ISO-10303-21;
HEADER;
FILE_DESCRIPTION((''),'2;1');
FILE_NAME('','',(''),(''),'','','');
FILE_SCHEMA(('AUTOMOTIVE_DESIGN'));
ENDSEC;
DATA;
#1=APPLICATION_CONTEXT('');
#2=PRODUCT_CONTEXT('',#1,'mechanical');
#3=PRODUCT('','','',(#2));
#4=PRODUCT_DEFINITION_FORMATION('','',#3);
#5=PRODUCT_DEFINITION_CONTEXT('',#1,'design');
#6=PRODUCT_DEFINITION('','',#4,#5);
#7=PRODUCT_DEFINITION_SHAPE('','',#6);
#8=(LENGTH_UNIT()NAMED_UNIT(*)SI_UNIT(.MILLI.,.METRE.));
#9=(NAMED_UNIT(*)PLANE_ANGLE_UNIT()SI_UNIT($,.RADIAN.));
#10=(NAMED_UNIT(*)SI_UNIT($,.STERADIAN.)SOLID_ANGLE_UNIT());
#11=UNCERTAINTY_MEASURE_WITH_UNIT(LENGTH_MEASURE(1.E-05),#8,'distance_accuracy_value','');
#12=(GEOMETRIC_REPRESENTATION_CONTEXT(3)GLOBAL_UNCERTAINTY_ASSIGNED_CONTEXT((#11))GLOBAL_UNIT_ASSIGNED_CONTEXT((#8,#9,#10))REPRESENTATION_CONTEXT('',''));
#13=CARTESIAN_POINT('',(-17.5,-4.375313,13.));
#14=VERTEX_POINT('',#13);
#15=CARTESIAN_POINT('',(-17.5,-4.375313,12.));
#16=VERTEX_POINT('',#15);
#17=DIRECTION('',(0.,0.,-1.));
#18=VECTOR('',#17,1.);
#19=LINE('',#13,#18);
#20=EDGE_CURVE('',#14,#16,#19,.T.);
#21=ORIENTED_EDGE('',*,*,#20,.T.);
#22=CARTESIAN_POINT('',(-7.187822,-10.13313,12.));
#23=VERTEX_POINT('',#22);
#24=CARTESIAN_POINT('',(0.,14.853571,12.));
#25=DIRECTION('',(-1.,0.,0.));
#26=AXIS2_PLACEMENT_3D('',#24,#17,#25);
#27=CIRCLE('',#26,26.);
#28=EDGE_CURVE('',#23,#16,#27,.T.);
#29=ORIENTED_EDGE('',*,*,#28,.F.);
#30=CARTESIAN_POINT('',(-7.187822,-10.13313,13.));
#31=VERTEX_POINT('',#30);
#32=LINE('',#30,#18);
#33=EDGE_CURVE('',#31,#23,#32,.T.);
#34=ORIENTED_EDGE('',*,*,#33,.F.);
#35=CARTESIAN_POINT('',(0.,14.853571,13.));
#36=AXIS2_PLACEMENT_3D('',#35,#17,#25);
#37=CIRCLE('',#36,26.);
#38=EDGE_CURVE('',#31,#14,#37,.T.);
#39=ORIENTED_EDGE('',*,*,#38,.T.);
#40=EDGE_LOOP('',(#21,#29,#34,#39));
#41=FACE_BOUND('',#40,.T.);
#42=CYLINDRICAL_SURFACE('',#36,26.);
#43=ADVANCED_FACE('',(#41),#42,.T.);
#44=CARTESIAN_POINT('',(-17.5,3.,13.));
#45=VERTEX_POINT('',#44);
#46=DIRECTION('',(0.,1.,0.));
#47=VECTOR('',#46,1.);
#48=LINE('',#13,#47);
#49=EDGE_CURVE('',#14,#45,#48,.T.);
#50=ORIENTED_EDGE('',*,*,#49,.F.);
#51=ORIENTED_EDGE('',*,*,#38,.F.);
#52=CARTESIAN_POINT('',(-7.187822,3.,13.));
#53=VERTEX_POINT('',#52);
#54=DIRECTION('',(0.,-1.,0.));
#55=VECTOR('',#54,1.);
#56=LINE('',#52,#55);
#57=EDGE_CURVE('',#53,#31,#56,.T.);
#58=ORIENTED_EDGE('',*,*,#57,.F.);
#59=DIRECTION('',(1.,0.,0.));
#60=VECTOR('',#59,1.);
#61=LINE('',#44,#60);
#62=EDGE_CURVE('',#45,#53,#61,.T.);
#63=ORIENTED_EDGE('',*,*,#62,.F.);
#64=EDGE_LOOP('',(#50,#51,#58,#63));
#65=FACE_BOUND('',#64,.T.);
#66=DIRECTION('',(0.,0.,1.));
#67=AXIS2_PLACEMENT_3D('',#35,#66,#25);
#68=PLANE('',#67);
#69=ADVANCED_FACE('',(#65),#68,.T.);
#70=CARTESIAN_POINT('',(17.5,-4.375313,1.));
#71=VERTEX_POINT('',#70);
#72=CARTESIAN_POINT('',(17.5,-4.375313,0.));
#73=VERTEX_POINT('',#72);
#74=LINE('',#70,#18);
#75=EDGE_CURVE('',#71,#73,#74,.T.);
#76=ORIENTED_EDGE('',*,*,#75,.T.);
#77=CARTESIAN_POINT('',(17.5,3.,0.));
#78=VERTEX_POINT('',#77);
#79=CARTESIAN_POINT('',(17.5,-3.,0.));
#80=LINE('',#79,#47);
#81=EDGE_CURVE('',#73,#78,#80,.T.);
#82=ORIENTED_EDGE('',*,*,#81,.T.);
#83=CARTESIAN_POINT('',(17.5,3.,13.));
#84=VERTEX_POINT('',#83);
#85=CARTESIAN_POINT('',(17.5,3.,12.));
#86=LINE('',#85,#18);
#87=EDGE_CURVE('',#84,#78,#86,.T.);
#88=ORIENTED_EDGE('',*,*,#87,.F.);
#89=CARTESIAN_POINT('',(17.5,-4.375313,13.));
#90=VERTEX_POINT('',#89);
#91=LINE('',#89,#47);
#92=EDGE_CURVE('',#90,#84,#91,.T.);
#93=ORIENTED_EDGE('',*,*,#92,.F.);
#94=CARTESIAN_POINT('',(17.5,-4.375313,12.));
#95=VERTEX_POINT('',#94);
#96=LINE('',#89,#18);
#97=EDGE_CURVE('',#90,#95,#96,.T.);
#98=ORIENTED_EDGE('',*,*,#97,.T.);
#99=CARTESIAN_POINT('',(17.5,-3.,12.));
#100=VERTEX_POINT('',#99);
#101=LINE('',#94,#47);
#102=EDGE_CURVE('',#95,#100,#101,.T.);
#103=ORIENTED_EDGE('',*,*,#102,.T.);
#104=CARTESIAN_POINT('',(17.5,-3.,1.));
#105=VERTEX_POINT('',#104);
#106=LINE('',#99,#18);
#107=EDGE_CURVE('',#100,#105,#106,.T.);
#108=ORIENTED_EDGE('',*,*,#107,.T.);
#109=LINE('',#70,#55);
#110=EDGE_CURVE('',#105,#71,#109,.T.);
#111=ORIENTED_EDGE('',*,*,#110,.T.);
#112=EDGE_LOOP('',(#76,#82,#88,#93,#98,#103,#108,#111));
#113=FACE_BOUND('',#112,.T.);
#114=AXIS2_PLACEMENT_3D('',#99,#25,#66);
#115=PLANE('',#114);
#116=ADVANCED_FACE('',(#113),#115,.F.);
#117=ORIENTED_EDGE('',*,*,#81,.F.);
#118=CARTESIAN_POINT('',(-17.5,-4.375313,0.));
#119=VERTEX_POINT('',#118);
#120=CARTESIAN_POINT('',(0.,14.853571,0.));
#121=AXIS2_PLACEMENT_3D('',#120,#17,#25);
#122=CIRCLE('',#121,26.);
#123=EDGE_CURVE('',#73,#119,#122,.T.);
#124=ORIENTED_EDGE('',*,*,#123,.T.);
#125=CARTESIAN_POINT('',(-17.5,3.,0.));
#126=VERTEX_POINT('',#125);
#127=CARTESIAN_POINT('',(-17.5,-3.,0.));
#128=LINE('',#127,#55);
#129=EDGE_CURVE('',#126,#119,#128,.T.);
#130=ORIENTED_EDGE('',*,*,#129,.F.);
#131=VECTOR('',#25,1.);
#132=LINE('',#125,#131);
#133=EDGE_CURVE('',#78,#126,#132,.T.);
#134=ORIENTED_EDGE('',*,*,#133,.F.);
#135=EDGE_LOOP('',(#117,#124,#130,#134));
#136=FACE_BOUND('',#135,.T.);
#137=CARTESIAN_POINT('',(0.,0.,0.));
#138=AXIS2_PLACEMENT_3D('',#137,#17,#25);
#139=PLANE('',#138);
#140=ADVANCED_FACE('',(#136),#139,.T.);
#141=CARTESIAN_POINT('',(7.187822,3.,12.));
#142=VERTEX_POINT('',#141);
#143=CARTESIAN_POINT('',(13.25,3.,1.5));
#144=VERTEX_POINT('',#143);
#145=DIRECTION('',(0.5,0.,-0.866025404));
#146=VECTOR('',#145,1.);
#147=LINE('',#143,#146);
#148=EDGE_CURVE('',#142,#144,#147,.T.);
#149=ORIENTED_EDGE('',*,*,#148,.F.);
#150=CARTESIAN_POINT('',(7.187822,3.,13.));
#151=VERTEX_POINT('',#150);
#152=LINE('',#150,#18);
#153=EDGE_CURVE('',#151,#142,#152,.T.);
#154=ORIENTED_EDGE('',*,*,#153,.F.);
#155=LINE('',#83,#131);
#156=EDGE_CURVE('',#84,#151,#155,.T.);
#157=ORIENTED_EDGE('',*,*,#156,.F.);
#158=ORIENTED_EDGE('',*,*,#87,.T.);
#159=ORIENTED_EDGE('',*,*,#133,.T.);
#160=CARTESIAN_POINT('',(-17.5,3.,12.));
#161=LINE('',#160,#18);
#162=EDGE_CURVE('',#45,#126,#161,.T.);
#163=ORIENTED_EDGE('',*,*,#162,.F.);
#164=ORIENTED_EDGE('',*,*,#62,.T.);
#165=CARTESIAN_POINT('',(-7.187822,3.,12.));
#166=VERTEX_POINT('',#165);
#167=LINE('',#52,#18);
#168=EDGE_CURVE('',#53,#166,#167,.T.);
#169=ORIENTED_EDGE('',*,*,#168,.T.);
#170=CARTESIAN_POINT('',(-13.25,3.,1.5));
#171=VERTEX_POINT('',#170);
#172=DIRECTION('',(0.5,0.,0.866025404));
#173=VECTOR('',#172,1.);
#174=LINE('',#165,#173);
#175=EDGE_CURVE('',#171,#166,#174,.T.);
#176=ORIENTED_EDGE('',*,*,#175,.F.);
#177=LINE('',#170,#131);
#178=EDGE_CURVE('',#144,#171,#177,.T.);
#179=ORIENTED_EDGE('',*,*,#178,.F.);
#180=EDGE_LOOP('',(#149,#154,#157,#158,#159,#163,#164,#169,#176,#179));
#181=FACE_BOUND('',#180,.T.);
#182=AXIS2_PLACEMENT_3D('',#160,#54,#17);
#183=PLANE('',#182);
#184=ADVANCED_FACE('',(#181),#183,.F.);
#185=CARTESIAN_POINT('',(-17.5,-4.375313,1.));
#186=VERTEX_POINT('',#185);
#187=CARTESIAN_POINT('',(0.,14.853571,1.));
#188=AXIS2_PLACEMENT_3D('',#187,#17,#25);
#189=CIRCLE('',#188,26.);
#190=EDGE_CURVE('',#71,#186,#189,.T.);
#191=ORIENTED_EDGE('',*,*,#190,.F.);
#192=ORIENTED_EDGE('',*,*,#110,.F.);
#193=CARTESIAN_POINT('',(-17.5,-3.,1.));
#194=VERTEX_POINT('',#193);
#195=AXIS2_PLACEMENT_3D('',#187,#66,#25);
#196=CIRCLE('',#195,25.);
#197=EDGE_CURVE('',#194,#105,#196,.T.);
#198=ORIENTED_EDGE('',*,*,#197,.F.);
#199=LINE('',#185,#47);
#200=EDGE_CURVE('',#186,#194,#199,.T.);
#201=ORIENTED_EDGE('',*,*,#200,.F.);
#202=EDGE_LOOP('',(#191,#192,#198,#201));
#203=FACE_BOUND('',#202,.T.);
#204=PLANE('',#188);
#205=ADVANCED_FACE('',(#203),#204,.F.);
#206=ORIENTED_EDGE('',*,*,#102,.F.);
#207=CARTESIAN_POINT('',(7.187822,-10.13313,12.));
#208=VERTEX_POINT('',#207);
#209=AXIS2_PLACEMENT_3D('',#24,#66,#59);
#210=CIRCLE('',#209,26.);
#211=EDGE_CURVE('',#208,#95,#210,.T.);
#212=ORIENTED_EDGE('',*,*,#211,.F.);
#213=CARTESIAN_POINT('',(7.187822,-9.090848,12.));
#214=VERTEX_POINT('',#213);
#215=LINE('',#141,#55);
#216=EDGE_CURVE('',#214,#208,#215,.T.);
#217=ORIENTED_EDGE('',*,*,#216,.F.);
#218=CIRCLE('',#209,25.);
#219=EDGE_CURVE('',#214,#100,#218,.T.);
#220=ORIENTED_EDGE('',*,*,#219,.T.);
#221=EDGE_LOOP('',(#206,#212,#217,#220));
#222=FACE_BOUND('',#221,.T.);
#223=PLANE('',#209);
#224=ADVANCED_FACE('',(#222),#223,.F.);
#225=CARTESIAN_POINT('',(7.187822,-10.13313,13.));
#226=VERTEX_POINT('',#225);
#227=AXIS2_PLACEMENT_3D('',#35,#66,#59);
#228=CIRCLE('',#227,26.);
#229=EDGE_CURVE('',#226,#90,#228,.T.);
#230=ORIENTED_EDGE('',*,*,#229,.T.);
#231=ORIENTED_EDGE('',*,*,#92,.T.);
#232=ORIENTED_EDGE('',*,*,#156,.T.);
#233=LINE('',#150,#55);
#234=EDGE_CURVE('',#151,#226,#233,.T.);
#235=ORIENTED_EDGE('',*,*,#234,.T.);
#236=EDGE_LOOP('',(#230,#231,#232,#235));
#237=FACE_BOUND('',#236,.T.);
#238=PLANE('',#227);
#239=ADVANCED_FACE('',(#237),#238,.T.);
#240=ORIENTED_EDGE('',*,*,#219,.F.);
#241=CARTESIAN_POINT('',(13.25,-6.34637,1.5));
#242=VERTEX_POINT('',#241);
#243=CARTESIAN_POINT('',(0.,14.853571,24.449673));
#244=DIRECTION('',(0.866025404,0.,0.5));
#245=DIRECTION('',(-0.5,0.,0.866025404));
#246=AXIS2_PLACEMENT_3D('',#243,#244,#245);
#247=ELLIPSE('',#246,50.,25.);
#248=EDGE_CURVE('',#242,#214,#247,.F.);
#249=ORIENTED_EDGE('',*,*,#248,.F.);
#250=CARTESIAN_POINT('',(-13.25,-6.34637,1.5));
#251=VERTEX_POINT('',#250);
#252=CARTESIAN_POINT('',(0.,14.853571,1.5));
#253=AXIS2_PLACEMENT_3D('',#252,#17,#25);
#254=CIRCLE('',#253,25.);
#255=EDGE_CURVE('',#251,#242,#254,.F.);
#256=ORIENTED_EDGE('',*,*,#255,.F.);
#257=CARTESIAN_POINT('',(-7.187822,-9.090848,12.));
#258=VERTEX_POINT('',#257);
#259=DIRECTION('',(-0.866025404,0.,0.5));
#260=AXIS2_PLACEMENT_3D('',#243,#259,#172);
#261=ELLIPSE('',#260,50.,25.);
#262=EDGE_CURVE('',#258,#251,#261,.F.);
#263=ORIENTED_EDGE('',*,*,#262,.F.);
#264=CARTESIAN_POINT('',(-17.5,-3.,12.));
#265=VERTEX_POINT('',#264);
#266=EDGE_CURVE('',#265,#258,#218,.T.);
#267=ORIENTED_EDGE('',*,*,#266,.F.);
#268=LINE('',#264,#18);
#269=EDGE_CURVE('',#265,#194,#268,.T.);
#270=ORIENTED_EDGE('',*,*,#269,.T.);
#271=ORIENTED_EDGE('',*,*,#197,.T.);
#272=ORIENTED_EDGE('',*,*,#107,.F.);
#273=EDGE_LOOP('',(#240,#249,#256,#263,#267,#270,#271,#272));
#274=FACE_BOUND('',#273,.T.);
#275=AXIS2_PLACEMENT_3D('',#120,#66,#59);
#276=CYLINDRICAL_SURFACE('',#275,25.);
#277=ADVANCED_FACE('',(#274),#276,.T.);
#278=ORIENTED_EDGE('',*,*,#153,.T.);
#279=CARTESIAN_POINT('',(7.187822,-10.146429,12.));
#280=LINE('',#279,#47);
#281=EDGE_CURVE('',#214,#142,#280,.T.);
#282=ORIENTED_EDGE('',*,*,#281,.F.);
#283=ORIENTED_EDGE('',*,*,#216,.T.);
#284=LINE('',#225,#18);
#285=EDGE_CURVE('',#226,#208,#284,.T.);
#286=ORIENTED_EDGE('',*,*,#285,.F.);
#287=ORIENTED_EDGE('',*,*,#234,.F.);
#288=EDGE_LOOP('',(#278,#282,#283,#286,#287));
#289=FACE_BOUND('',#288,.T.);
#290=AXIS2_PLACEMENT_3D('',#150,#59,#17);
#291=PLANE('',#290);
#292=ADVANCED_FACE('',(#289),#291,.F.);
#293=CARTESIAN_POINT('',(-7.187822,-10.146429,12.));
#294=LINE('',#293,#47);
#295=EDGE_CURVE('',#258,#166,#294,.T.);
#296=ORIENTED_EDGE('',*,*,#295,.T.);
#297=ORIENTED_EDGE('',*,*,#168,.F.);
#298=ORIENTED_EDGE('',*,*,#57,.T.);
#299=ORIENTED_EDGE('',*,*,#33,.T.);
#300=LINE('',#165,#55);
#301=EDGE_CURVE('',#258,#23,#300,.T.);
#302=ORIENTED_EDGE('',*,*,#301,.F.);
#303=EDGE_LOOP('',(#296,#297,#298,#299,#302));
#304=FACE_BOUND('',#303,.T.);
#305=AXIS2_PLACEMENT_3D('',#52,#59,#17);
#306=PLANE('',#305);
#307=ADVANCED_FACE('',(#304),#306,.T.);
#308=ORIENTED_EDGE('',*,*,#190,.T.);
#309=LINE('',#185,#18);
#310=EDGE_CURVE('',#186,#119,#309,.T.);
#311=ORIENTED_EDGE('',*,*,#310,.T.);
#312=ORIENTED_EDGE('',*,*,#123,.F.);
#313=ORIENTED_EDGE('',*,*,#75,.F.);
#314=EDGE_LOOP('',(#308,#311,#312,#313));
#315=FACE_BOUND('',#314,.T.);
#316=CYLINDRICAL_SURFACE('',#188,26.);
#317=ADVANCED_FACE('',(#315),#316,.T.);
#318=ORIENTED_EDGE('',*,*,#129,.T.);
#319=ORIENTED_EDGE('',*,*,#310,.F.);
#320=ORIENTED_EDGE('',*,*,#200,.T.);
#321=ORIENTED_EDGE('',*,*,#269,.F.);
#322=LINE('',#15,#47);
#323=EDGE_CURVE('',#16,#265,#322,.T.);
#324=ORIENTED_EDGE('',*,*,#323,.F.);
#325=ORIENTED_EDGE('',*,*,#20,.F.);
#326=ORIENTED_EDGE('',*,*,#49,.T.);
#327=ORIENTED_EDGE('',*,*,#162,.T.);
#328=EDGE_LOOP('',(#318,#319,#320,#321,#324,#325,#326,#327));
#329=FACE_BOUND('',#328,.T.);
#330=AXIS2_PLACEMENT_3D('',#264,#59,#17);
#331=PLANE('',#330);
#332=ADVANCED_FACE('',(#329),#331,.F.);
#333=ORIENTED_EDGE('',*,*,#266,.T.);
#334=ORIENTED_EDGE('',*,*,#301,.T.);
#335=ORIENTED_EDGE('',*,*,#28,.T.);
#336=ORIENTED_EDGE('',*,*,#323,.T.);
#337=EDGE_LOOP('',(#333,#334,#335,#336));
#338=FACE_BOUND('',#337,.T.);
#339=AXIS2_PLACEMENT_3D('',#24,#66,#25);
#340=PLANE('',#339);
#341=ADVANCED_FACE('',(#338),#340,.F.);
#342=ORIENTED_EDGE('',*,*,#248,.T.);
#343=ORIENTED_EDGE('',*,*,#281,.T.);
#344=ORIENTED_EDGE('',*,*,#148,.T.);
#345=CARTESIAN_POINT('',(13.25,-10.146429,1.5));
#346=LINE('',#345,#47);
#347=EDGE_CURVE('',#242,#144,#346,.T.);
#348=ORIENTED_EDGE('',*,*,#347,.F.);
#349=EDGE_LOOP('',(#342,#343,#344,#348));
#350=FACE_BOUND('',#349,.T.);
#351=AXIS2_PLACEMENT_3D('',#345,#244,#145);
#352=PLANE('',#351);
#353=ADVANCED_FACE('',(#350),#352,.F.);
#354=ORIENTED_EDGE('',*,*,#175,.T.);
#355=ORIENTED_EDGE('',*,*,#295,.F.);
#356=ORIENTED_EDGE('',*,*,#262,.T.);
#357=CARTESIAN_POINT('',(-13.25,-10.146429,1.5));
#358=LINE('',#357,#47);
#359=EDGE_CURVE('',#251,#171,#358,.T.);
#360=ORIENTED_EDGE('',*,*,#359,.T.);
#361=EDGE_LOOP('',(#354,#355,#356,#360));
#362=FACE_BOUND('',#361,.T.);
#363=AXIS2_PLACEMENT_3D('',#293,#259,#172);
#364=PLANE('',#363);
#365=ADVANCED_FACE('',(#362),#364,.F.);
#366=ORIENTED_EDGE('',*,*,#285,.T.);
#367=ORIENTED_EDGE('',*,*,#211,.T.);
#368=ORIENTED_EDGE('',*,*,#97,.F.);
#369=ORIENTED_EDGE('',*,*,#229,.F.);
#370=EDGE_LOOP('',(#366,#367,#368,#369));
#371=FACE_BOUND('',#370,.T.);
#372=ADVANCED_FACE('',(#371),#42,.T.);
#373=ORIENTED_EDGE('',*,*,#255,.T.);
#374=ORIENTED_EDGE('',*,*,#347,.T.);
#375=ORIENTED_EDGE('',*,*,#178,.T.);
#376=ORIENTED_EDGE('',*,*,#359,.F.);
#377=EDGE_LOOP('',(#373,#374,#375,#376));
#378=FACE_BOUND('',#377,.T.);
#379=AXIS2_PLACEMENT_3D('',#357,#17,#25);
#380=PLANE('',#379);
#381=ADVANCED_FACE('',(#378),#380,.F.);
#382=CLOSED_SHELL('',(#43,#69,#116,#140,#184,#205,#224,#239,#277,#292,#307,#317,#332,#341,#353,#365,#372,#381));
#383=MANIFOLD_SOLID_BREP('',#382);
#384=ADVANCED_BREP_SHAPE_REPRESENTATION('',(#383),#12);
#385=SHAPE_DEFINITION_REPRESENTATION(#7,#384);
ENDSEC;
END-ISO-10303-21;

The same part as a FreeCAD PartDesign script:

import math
import FreeCAD as App
import Part
import Sketcher
Q = App.Units.Quantity


def add_polygon(sketch, points):
    """Adds a closed chain of lines whose ends are joined by coincident constraints."""
    first, n = sketch.GeometryCount, len(points)
    for a, b in zip(points, points[1:] + points[:1]):
        sketch.addGeometry(Part.LineSegment(App.Vector(*a, 0), App.Vector(*b, 0)), False)
    for i in range(n):
        sketch.addConstraint(Sketcher.Constraint("Coincident", first + i, 2, first + (i + 1) % n, 1))

doc = App.newDocument("Part")
body = doc.addObject("PartDesign::Body", "Body")

# Sketch on XY plane
sketch1 = body.newObject("Sketcher::SketchObject", "Sketch")
sketch1.AttachmentSupport = (doc.getObject("XY_Plane"), [""])
sketch1.MapMode = "FlatFace"
add_polygon(sketch1, [(-17.5, 3), (-17.5, -3), (17.5, -3), (17.5, 3)])  # lines 0-3
sketch1.addConstraint(Sketcher.Constraint("Vertical", 0))
sketch1.addConstraint(Sketcher.Constraint("Horizontal", 1))
sketch1.addConstraint(Sketcher.Constraint("Vertical", 2))
sketch1.addConstraint(Sketcher.Constraint("Horizontal", 3))
sketch1.addConstraint(Sketcher.Constraint("Symmetric", 0, 2, 2, 2, -1, 1))
sketch1.addConstraint(Sketcher.Constraint("DistanceX", 1, 1, 1, 2, 35.0))
sketch1.addConstraint(Sketcher.Constraint("DistanceY", 0, 2, 0, 1, 6.0))
pad1 = body.newObject("PartDesign::Pad", "Pad")
pad1.Profile = sketch1
pad1.Length = 12

# Sketch on XY plane
sketch2 = body.newObject("Sketcher::SketchObject", "Sketch001")
sketch2.AttachmentSupport = (doc.getObject("XY_Plane"), [""])
sketch2.MapMode = "FlatFace"
sketch2.AttachmentOffset = App.Placement(App.Vector(0, 0, 12), App.Rotation())
sketch2.addGeometry(Part.LineSegment(App.Vector(17.5, -3, 0), App.Vector(-17.5, -3, 0)), False)
sketch2.addGeometry(Part.ArcOfCircle(Part.Circle(App.Vector(0, 14.853571, 0), App.Vector(0, 0, 1), 25), math.radians(-134.427004), math.radians(-45.572996)), False)
sketch2.addConstraint(Sketcher.Constraint("Coincident", 0, 1, 1, 2))
sketch2.addConstraint(Sketcher.Constraint("Coincident", 1, 1, 0, 2))
sketch2.addConstraint(Sketcher.Constraint("Horizontal", 0))
sketch2.addConstraint(Sketcher.Constraint("PointOnObject", 1, 3, -2))
sketch2.addConstraint(Sketcher.Constraint("Radius", 1, 25.0))
sketch2.addConstraint(Sketcher.Constraint("DistanceX", 0, 2, 0, 1, 35.0))
sketch2.addConstraint(Sketcher.Constraint("DistanceY", 0, 1, -1, 1, 3.0))
pad2 = body.newObject("PartDesign::Pad", "Pad001")
pad2.Profile = sketch2
pad2.Length = 12
pad2.Reversed = True

# Sketch on XY plane
sketch3 = body.newObject("Sketcher::SketchObject", "Sketch002")
sketch3.AttachmentSupport = (doc.getObject("XY_Plane"), [""])
sketch3.MapMode = "FlatFace"
sketch3.AttachmentOffset = App.Placement(App.Vector(0, 0, 12), App.Rotation())
add_polygon(sketch3, [(-3, 3), (-3, -10.146429), (3, -10.146429), (3, 3)])  # lines 0-3
sketch3.addConstraint(Sketcher.Constraint("Vertical", 0))
sketch3.addConstraint(Sketcher.Constraint("Horizontal", 1))
sketch3.addConstraint(Sketcher.Constraint("Vertical", 2))
sketch3.addConstraint(Sketcher.Constraint("Horizontal", 3))
sketch3.addConstraint(Sketcher.Constraint("DistanceX", 1, 1, 1, 2, 6.0))
sketch3.addConstraint(Sketcher.Constraint("DistanceX", 0, 2, -1, 1, 3.0))
sketch3.addConstraint(Sketcher.Constraint("DistanceY", -1, 1, 2, 2, 3.0))
sketch3.addConstraint(Sketcher.Constraint("DistanceY", 0, 2, 0, 1, 13.146429))
pocket1 = body.newObject("PartDesign::Pocket", "Pocket")
pocket1.Profile = sketch3
pocket1.Length = 8

# Sketch on XY plane
sketch4 = body.newObject("Sketcher::SketchObject", "Sketch003")
sketch4.AttachmentSupport = (doc.getObject("XY_Plane"), [""])
sketch4.MapMode = "FlatFace"
sketch4.AttachmentOffset = App.Placement(App.Vector(0, 0, 12), App.Rotation())
sketch4.addGeometry(Part.LineSegment(App.Vector(3, 4, 0), App.Vector(3, 2, 0)), False)
sketch4.addGeometry(Part.ArcOfCircle(Part.Circle(App.Vector(3.555, 2, 0), App.Vector(0, 0, 1), 0.555), math.radians(115.989233), math.radians(180)), False)
sketch4.addGeometry(Part.ArcOfCircle(Part.Circle(App.Vector(3.75, 1.6, 0), App.Vector(0, 0, 1), 1), math.radians(97.494717), math.radians(115.989234)), False)
sketch4.addGeometry(Part.ArcOfCircle(Part.Circle(App.Vector(3.6, 2.740175, 0), App.Vector(0, 0, 1), 0.15), math.radians(-82.505283), math.radians(0)), False)
sketch4.addGeometry(Part.LineSegment(App.Vector(3.75, 2.740175, 0), App.Vector(3.75, 3.259825, 0)), False)
sketch4.addGeometry(Part.ArcOfCircle(Part.Circle(App.Vector(3.6, 3.259825, 0), App.Vector(0, 0, 1), 0.15), math.radians(0), math.radians(82.505283)), False)
sketch4.addGeometry(Part.ArcOfCircle(Part.Circle(App.Vector(3.75, 4.4, 0), App.Vector(0, 0, 1), 1), math.radians(-115.989234), math.radians(-97.494717)), False)
sketch4.addGeometry(Part.ArcOfCircle(Part.Circle(App.Vector(3.555, 4, 0), App.Vector(0, 0, 1), 0.555), math.radians(180), math.radians(244.010767)), False)
sketch4.addConstraint(Sketcher.Constraint("Tangent", 0, 2, 1, 2))
sketch4.addConstraint(Sketcher.Constraint("Tangent", 1, 1, 2, 2))
sketch4.addConstraint(Sketcher.Constraint("Tangent", 2, 1, 3, 1))
sketch4.addConstraint(Sketcher.Constraint("Tangent", 3, 2, 4, 1))
sketch4.addConstraint(Sketcher.Constraint("Tangent", 4, 2, 5, 1))
sketch4.addConstraint(Sketcher.Constraint("Tangent", 5, 2, 6, 2))
sketch4.addConstraint(Sketcher.Constraint("Tangent", 6, 1, 7, 2))
sketch4.addConstraint(Sketcher.Constraint("Tangent", 7, 1, 0, 1))
sketch4.addConstraint(Sketcher.Constraint("Vertical", 0))
sketch4.addConstraint(Sketcher.Constraint("Vertical", 4))
sketch4.addConstraint(Sketcher.Constraint("Equal", 3, 5))
sketch4.addConstraint(Sketcher.Constraint("Equal", 2, 6))
sketch4.addConstraint(Sketcher.Constraint("Equal", 1, 7))
sketch4.addConstraint(Sketcher.Constraint("Vertical", 2, 3, 6, 3))
sketch4.addConstraint(Sketcher.Constraint("Vertical", 6, 3, 3, 2))
sketch4.addConstraint(Sketcher.Constraint("Radius", 2, 1.0))
sketch4.addConstraint(Sketcher.Constraint("DistanceY", 0, 2, 0, 1, 2.0))
sketch4.addConstraint(Sketcher.Constraint("Radius", 3, 0.15))
sketch4.addConstraint(Sketcher.Constraint("DistanceY", -1, 1, 1, 3, 2.0))
sketch4.addConstraint(Sketcher.Constraint("DistanceX", -1, 1, 0, 2, 3.0))
sketch4.addConstraint(Sketcher.Constraint("Radius", 1, 0.555))
sketch4.addConstraint(Sketcher.Constraint("DistanceY", -1, 1, 2, 3, 1.6))
pocket2 = body.newObject("PartDesign::Pocket", "Pocket001")
pocket2.Profile = sketch4
pocket2.Length = 8
doc.recompute()

linearpattern = body.newObject("PartDesign::LinearPattern", "LinearPattern")
linearpattern.Originals = [pocket2]
linearpattern.Direction = (doc.getObject("Y_Axis"), [""])
linearpattern.Mode = "offset"
linearpattern.Offset = 2
linearpattern.Occurrences = 10
linearpattern.Reversed = True
body.Tip = linearpattern
doc.recompute()

mirrored = body.newObject("PartDesign::Mirrored", "Mirrored")
mirrored.Originals = [pocket2]
mirrored.MirrorPlane = (doc.getObject("YZ_Plane"), [""])
body.Tip = mirrored

# Sketch on XY plane
sketch5 = body.newObject("Sketcher::SketchObject", "Sketch004")
sketch5.AttachmentSupport = (doc.getObject("XY_Plane"), [""])
sketch5.MapMode = "FlatFace"
sketch5.AttachmentOffset = App.Placement(App.Vector(0, 0, 12), App.Rotation())
sketch5.addGeometry(Part.LineSegment(App.Vector(-3, 0, 0), App.Vector(-3, 2, 0)), False)
sketch5.addGeometry(Part.ArcOfCircle(Part.Circle(App.Vector(-3.555, 2, 0), App.Vector(0, 0, 1), 0.555), math.radians(-64.010767), math.radians(0)), False)
sketch5.addGeometry(Part.ArcOfCircle(Part.Circle(App.Vector(-3.75, 2.4, 0), App.Vector(0, 0, 1), 1), math.radians(-82.505283), math.radians(-64.010766)), False)
sketch5.addGeometry(Part.ArcOfCircle(Part.Circle(App.Vector(-3.6, 1.259825, 0), App.Vector(0, 0, 1), 0.15), math.radians(97.494717), math.radians(180)), False)
sketch5.addGeometry(Part.LineSegment(App.Vector(-3.75, 1.259825, 0), App.Vector(-3.75, 0.740175, 0)), False)
sketch5.addGeometry(Part.ArcOfCircle(Part.Circle(App.Vector(-3.6, 0.740175, 0), App.Vector(0, 0, 1), 0.15), math.radians(180), math.radians(262.505283)), False)
sketch5.addGeometry(Part.ArcOfCircle(Part.Circle(App.Vector(-3.75, -0.4, 0), App.Vector(0, 0, 1), 1), math.radians(64.010766), math.radians(82.505283)), False)
sketch5.addGeometry(Part.ArcOfCircle(Part.Circle(App.Vector(-3.555, 0, 0), App.Vector(0, 0, 1), 0.555), math.radians(0), math.radians(64.010767)), False)
sketch5.addConstraint(Sketcher.Constraint("Tangent", 0, 2, 1, 2))
sketch5.addConstraint(Sketcher.Constraint("Tangent", 1, 1, 2, 2))
sketch5.addConstraint(Sketcher.Constraint("Tangent", 2, 1, 3, 1))
sketch5.addConstraint(Sketcher.Constraint("Tangent", 3, 2, 4, 1))
sketch5.addConstraint(Sketcher.Constraint("Tangent", 4, 2, 5, 1))
sketch5.addConstraint(Sketcher.Constraint("Tangent", 5, 2, 6, 2))
sketch5.addConstraint(Sketcher.Constraint("Tangent", 6, 1, 7, 2))
sketch5.addConstraint(Sketcher.Constraint("Tangent", 7, 1, 0, 1))
sketch5.addConstraint(Sketcher.Constraint("Vertical", 0))
sketch5.addConstraint(Sketcher.Constraint("Vertical", 4))
sketch5.addConstraint(Sketcher.Constraint("Equal", 3, 5))
sketch5.addConstraint(Sketcher.Constraint("Equal", 2, 6))
sketch5.addConstraint(Sketcher.Constraint("Equal", 1, 7))
sketch5.addConstraint(Sketcher.Constraint("PointOnObject", 7, 3, -1))
sketch5.addConstraint(Sketcher.Constraint("Vertical", 2, 3, 6, 3))
sketch5.addConstraint(Sketcher.Constraint("Vertical", 6, 3, 3, 2))
sketch5.addConstraint(Sketcher.Constraint("Radius", 2, 1.0))
sketch5.addConstraint(Sketcher.Constraint("DistanceY", 0, 1, 0, 2, 2.0))
sketch5.addConstraint(Sketcher.Constraint("Radius", 3, 0.15))
sketch5.addConstraint(Sketcher.Constraint("DistanceX", 0, 2, -1, 1, 3.0))
sketch5.addConstraint(Sketcher.Constraint("Radius", 1, 0.555))
sketch5.addConstraint(Sketcher.Constraint("DistanceY", -1, 1, 2, 3, 2.4))
pocket3 = body.newObject("PartDesign::Pocket", "Pocket002")
pocket3.Profile = sketch5
pocket3.Length = 8

# Sketch on XY plane
sketch6 = body.newObject("Sketcher::SketchObject", "Sketch005")
sketch6.AttachmentSupport = (doc.getObject("XY_Plane"), [""])
sketch6.MapMode = "FlatFace"
sketch6.AttachmentOffset = App.Placement(App.Vector(0, 0, 12), App.Rotation())
sketch6.addGeometry(Part.LineSegment(App.Vector(-3, -2, 0), App.Vector(-3, 0, 0)), False)
sketch6.addGeometry(Part.ArcOfCircle(Part.Circle(App.Vector(-3.555, 0, 0), App.Vector(0, 0, 1), 0.555), math.radians(-64.010767), math.radians(0)), False)
sketch6.addGeometry(Part.ArcOfCircle(Part.Circle(App.Vector(-3.75, 0.4, 0), App.Vector(0, 0, 1), 1), math.radians(-82.505283), math.radians(-64.010766)), False)
sketch6.addGeometry(Part.ArcOfCircle(Part.Circle(App.Vector(-3.6, -0.740175, 0), App.Vector(0, 0, 1), 0.15), math.radians(97.494717), math.radians(180)), False)
sketch6.addGeometry(Part.LineSegment(App.Vector(-3.75, -0.740175, 0), App.Vector(-3.75, -1.259825, 0)), False)
sketch6.addGeometry(Part.ArcOfCircle(Part.Circle(App.Vector(-3.6, -1.259825, 0), App.Vector(0, 0, 1), 0.15), math.radians(180), math.radians(262.505283)), False)
sketch6.addGeometry(Part.ArcOfCircle(Part.Circle(App.Vector(-3.75, -2.4, 0), App.Vector(0, 0, 1), 1), math.radians(64.010766), math.radians(82.505283)), False)
sketch6.addGeometry(Part.ArcOfCircle(Part.Circle(App.Vector(-3.555, -2, 0), App.Vector(0, 0, 1), 0.555), math.radians(0), math.radians(64.010767)), False)
sketch6.addConstraint(Sketcher.Constraint("Tangent", 0, 2, 1, 2))
sketch6.addConstraint(Sketcher.Constraint("Tangent", 1, 1, 2, 2))
sketch6.addConstraint(Sketcher.Constraint("Tangent", 2, 1, 3, 1))
sketch6.addConstraint(Sketcher.Constraint("Tangent", 3, 2, 4, 1))
sketch6.addConstraint(Sketcher.Constraint("Tangent", 4, 2, 5, 1))
sketch6.addConstraint(Sketcher.Constraint("Tangent", 5, 2, 6, 2))
sketch6.addConstraint(Sketcher.Constraint("Tangent", 6, 1, 7, 2))
sketch6.addConstraint(Sketcher.Constraint("Tangent", 7, 1, 0, 1))
sketch6.addConstraint(Sketcher.Constraint("Vertical", 0))
sketch6.addConstraint(Sketcher.Constraint("Vertical", 4))
sketch6.addConstraint(Sketcher.Constraint("Equal", 3, 5))
sketch6.addConstraint(Sketcher.Constraint("Equal", 2, 6))
sketch6.addConstraint(Sketcher.Constraint("Equal", 1, 7))
sketch6.addConstraint(Sketcher.Constraint("PointOnObject", 1, 3, -1))
sketch6.addConstraint(Sketcher.Constraint("Vertical", 2, 3, 6, 3))
sketch6.addConstraint(Sketcher.Constraint("Vertical", 6, 3, 3, 2))
sketch6.addConstraint(Sketcher.Constraint("Radius", 2, 1.0))
sketch6.addConstraint(Sketcher.Constraint("DistanceY", 0, 1, 0, 2, 2.0))
sketch6.addConstraint(Sketcher.Constraint("Radius", 3, 0.15))
sketch6.addConstraint(Sketcher.Constraint("DistanceX", 0, 2, -1, 1, 3.0))
sketch6.addConstraint(Sketcher.Constraint("Radius", 1, 0.555))
sketch6.addConstraint(Sketcher.Constraint("DistanceY", -1, 1, 2, 3, 0.4))
pocket4 = body.newObject("PartDesign::Pocket", "Pocket003")
pocket4.Profile = sketch6
pocket4.Length = 8

# Sketch on XY plane
sketch7 = body.newObject("Sketcher::SketchObject", "Sketch006")
sketch7.AttachmentSupport = (doc.getObject("XY_Plane"), [""])
sketch7.MapMode = "FlatFace"
sketch7.AttachmentOffset = App.Placement(App.Vector(0, 0, 12), App.Rotation())
sketch7.addGeometry(Part.LineSegment(App.Vector(-3, -4, 0), App.Vector(-3, -2, 0)), False)
sketch7.addGeometry(Part.ArcOfCircle(Part.Circle(App.Vector(-3.555, -2, 0), App.Vector(0, 0, 1), 0.555), math.radians(-64.010767), math.radians(0)), False)
sketch7.addGeometry(Part.ArcOfCircle(Part.Circle(App.Vector(-3.75, -1.6, 0), App.Vector(0, 0, 1), 1), math.radians(-82.505283), math.radians(-64.010766)), False)
sketch7.addGeometry(Part.ArcOfCircle(Part.Circle(App.Vector(-3.6, -2.740175, 0), App.Vector(0, 0, 1), 0.15), math.radians(97.494717), math.radians(180)), False)
sketch7.addGeometry(Part.LineSegment(App.Vector(-3.75, -2.740175, 0), App.Vector(-3.75, -3.259825, 0)), False)
sketch7.addGeometry(Part.ArcOfCircle(Part.Circle(App.Vector(-3.6, -3.259825, 0), App.Vector(0, 0, 1), 0.15), math.radians(180), math.radians(262.505283)), False)
sketch7.addGeometry(Part.ArcOfCircle(Part.Circle(App.Vector(-3.75, -4.4, 0), App.Vector(0, 0, 1), 1), math.radians(64.010766), math.radians(82.505283)), False)
sketch7.addGeometry(Part.ArcOfCircle(Part.Circle(App.Vector(-3.555, -4, 0), App.Vector(0, 0, 1), 0.555), math.radians(0), math.radians(64.010767)), False)
sketch7.addConstraint(Sketcher.Constraint("Tangent", 0, 2, 1, 2))
sketch7.addConstraint(Sketcher.Constraint("Tangent", 1, 1, 2, 2))
sketch7.addConstraint(Sketcher.Constraint("Tangent", 2, 1, 3, 1))
sketch7.addConstraint(Sketcher.Constraint("Tangent", 3, 2, 4, 1))
sketch7.addConstraint(Sketcher.Constraint("Tangent", 4, 2, 5, 1))
sketch7.addConstraint(Sketcher.Constraint("Tangent", 5, 2, 6, 2))
sketch7.addConstraint(Sketcher.Constraint("Tangent", 6, 1, 7, 2))
sketch7.addConstraint(Sketcher.Constraint("Tangent", 7, 1, 0, 1))
sketch7.addConstraint(Sketcher.Constraint("Vertical", 0))
sketch7.addConstraint(Sketcher.Constraint("Vertical", 4))
sketch7.addConstraint(Sketcher.Constraint("Equal", 3, 5))
sketch7.addConstraint(Sketcher.Constraint("Equal", 2, 6))
sketch7.addConstraint(Sketcher.Constraint("Equal", 1, 7))
sketch7.addConstraint(Sketcher.Constraint("Vertical", 2, 3, 6, 3))
sketch7.addConstraint(Sketcher.Constraint("Vertical", 6, 3, 3, 2))
sketch7.addConstraint(Sketcher.Constraint("Radius", 2, 1.0))
sketch7.addConstraint(Sketcher.Constraint("DistanceY", 0, 1, 0, 2, 2.0))
sketch7.addConstraint(Sketcher.Constraint("Radius", 3, 0.15))
sketch7.addConstraint(Sketcher.Constraint("DistanceY", 1, 3, -1, 1, 2.0))
sketch7.addConstraint(Sketcher.Constraint("DistanceX", 0, 2, -1, 1, 3.0))
sketch7.addConstraint(Sketcher.Constraint("Radius", 1, 0.555))
sketch7.addConstraint(Sketcher.Constraint("DistanceY", 2, 3, -1, 1, 1.6))
pocket5 = body.newObject("PartDesign::Pocket", "Pocket004")
pocket5.Profile = sketch7
pocket5.Length = 8

# Sketch on XY plane
sketch8 = body.newObject("Sketcher::SketchObject", "Sketch007")
sketch8.AttachmentSupport = (doc.getObject("XY_Plane"), [""])
sketch8.MapMode = "FlatFace"
sketch8.AttachmentOffset = App.Placement(App.Vector(0, 0, 12), App.Rotation())
sketch8.addGeometry(Part.LineSegment(App.Vector(-3, -6, 0), App.Vector(-3, -4, 0)), False)
sketch8.addGeometry(Part.ArcOfCircle(Part.Circle(App.Vector(-3.555, -4, 0), App.Vector(0, 0, 1), 0.555), math.radians(-64.010767), math.radians(0)), False)
sketch8.addGeometry(Part.ArcOfCircle(Part.Circle(App.Vector(-3.75, -3.6, 0), App.Vector(0, 0, 1), 1), math.radians(-82.505283), math.radians(-64.010766)), False)
sketch8.addGeometry(Part.ArcOfCircle(Part.Circle(App.Vector(-3.6, -4.740175, 0), App.Vector(0, 0, 1), 0.15), math.radians(97.494717), math.radians(180)), False)
sketch8.addGeometry(Part.LineSegment(App.Vector(-3.75, -4.740175, 0), App.Vector(-3.75, -5.259825, 0)), False)
sketch8.addGeometry(Part.ArcOfCircle(Part.Circle(App.Vector(-3.6, -5.259825, 0), App.Vector(0, 0, 1), 0.15), math.radians(180), math.radians(262.505283)), False)
sketch8.addGeometry(Part.ArcOfCircle(Part.Circle(App.Vector(-3.75, -6.4, 0), App.Vector(0, 0, 1), 1), math.radians(64.010766), math.radians(82.505283)), False)
sketch8.addGeometry(Part.ArcOfCircle(Part.Circle(App.Vector(-3.555, -6, 0), App.Vector(0, 0, 1), 0.555), math.radians(0), math.radians(64.010767)), False)
sketch8.addConstraint(Sketcher.Constraint("Tangent", 0, 2, 1, 2))
sketch8.addConstraint(Sketcher.Constraint("Tangent", 1, 1, 2, 2))
sketch8.addConstraint(Sketcher.Constraint("Tangent", 2, 1, 3, 1))
sketch8.addConstraint(Sketcher.Constraint("Tangent", 3, 2, 4, 1))
sketch8.addConstraint(Sketcher.Constraint("Tangent", 4, 2, 5, 1))
sketch8.addConstraint(Sketcher.Constraint("Tangent", 5, 2, 6, 2))
sketch8.addConstraint(Sketcher.Constraint("Tangent", 6, 1, 7, 2))
sketch8.addConstraint(Sketcher.Constraint("Tangent", 7, 1, 0, 1))
sketch8.addConstraint(Sketcher.Constraint("Vertical", 0))
sketch8.addConstraint(Sketcher.Constraint("Vertical", 4))
sketch8.addConstraint(Sketcher.Constraint("Equal", 3, 5))
sketch8.addConstraint(Sketcher.Constraint("Equal", 2, 6))
sketch8.addConstraint(Sketcher.Constraint("Equal", 1, 7))
sketch8.addConstraint(Sketcher.Constraint("Vertical", 2, 3, 6, 3))
sketch8.addConstraint(Sketcher.Constraint("Vertical", 6, 3, 3, 2))
sketch8.addConstraint(Sketcher.Constraint("Radius", 2, 1.0))
sketch8.addConstraint(Sketcher.Constraint("DistanceY", 0, 1, 0, 2, 2.0))
sketch8.addConstraint(Sketcher.Constraint("Radius", 3, 0.15))
sketch8.addConstraint(Sketcher.Constraint("DistanceY", 1, 3, -1, 1, 4.0))
sketch8.addConstraint(Sketcher.Constraint("DistanceX", 0, 2, -1, 1, 3.0))
sketch8.addConstraint(Sketcher.Constraint("Radius", 1, 0.555))
sketch8.addConstraint(Sketcher.Constraint("DistanceY", 2, 3, -1, 1, 3.6))
pocket6 = body.newObject("PartDesign::Pocket", "Pocket005")
pocket6.Profile = sketch8
pocket6.Length = 8

# Sketch on XY plane
sketch9 = body.newObject("Sketcher::SketchObject", "Sketch008")
sketch9.AttachmentSupport = (doc.getObject("XY_Plane"), [""])
sketch9.MapMode = "FlatFace"
sketch9.AttachmentOffset = App.Placement(App.Vector(0, 0, 12), App.Rotation())
sketch9.addGeometry(Part.LineSegment(App.Vector(-3, -8, 0), App.Vector(-3, -6, 0)), False)
sketch9.addGeometry(Part.ArcOfCircle(Part.Circle(App.Vector(-3.555, -6, 0), App.Vector(0, 0, 1), 0.555), math.radians(-64.010767), math.radians(0)), False)
sketch9.addGeometry(Part.ArcOfCircle(Part.Circle(App.Vector(-3.75, -5.6, 0), App.Vector(0, 0, 1), 1), math.radians(-82.505283), math.radians(-64.010766)), False)
sketch9.addGeometry(Part.ArcOfCircle(Part.Circle(App.Vector(-3.6, -6.740175, 0), App.Vector(0, 0, 1), 0.15), math.radians(97.494717), math.radians(180)), False)
sketch9.addGeometry(Part.LineSegment(App.Vector(-3.75, -6.740175, 0), App.Vector(-3.75, -7.259825, 0)), False)
sketch9.addGeometry(Part.ArcOfCircle(Part.Circle(App.Vector(-3.6, -7.259825, 0), App.Vector(0, 0, 1), 0.15), math.radians(180), math.radians(262.505283)), False)
sketch9.addGeometry(Part.ArcOfCircle(Part.Circle(App.Vector(-3.75, -8.4, 0), App.Vector(0, 0, 1), 1), math.radians(64.010766), math.radians(82.505283)), False)
sketch9.addGeometry(Part.ArcOfCircle(Part.Circle(App.Vector(-3.555, -8, 0), App.Vector(0, 0, 1), 0.555), math.radians(0), math.radians(64.010767)), False)
sketch9.addConstraint(Sketcher.Constraint("Tangent", 0, 2, 1, 2))
sketch9.addConstraint(Sketcher.Constraint("Tangent", 1, 1, 2, 2))
sketch9.addConstraint(Sketcher.Constraint("Tangent", 2, 1, 3, 1))
sketch9.addConstraint(Sketcher.Constraint("Tangent", 3, 2, 4, 1))
sketch9.addConstraint(Sketcher.Constraint("Tangent", 4, 2, 5, 1))
sketch9.addConstraint(Sketcher.Constraint("Tangent", 5, 2, 6, 2))
sketch9.addConstraint(Sketcher.Constraint("Tangent", 6, 1, 7, 2))
sketch9.addConstraint(Sketcher.Constraint("Tangent", 7, 1, 0, 1))
sketch9.addConstraint(Sketcher.Constraint("Vertical", 0))
sketch9.addConstraint(Sketcher.Constraint("Vertical", 4))
sketch9.addConstraint(Sketcher.Constraint("Equal", 3, 5))
sketch9.addConstraint(Sketcher.Constraint("Equal", 2, 6))
sketch9.addConstraint(Sketcher.Constraint("Equal", 1, 7))
sketch9.addConstraint(Sketcher.Constraint("Vertical", 2, 3, 6, 3))
sketch9.addConstraint(Sketcher.Constraint("Vertical", 6, 3, 3, 2))
sketch9.addConstraint(Sketcher.Constraint("Radius", 2, 1.0))
sketch9.addConstraint(Sketcher.Constraint("DistanceY", 0, 1, 0, 2, 2.0))
sketch9.addConstraint(Sketcher.Constraint("Radius", 3, 0.15))
sketch9.addConstraint(Sketcher.Constraint("DistanceY", 1, 3, -1, 1, 6.0))
sketch9.addConstraint(Sketcher.Constraint("DistanceX", 0, 2, -1, 1, 3.0))
sketch9.addConstraint(Sketcher.Constraint("Radius", 1, 0.555))
sketch9.addConstraint(Sketcher.Constraint("DistanceY", 2, 3, -1, 1, 5.6))
pocket7 = body.newObject("PartDesign::Pocket", "Pocket006")
pocket7.Profile = sketch9
pocket7.Length = 8

# Sketch on XY plane
sketch10 = body.newObject("Sketcher::SketchObject", "Sketch009")
sketch10.AttachmentSupport = (doc.getObject("XY_Plane"), [""])
sketch10.MapMode = "FlatFace"
sketch10.AttachmentOffset = App.Placement(App.Vector(0, 0, 12), App.Rotation())
sketch10.addGeometry(Part.LineSegment(App.Vector(-3, -10, 0), App.Vector(-3, -8, 0)), False)
sketch10.addGeometry(Part.ArcOfCircle(Part.Circle(App.Vector(-3.555, -8, 0), App.Vector(0, 0, 1), 0.555), math.radians(-64.010767), math.radians(0)), False)
sketch10.addGeometry(Part.ArcOfCircle(Part.Circle(App.Vector(-3.75, -7.6, 0), App.Vector(0, 0, 1), 1), math.radians(-82.505283), math.radians(-64.010766)), False)
sketch10.addGeometry(Part.ArcOfCircle(Part.Circle(App.Vector(-3.6, -8.740175, 0), App.Vector(0, 0, 1), 0.15), math.radians(97.494717), math.radians(180)), False)
sketch10.addGeometry(Part.LineSegment(App.Vector(-3.75, -8.740175, 0), App.Vector(-3.75, -9.259825, 0)), False)
sketch10.addGeometry(Part.ArcOfCircle(Part.Circle(App.Vector(-3.6, -9.259825, 0), App.Vector(0, 0, 1), 0.15), math.radians(180), math.radians(262.505283)), False)
sketch10.addGeometry(Part.ArcOfCircle(Part.Circle(App.Vector(-3.75, -10.4, 0), App.Vector(0, 0, 1), 1), math.radians(64.010766), math.radians(82.505283)), False)
sketch10.addGeometry(Part.ArcOfCircle(Part.Circle(App.Vector(-3.555, -10, 0), App.Vector(0, 0, 1), 0.555), math.radians(0), math.radians(64.010767)), False)
sketch10.addConstraint(Sketcher.Constraint("Tangent", 0, 2, 1, 2))
sketch10.addConstraint(Sketcher.Constraint("Tangent", 1, 1, 2, 2))
sketch10.addConstraint(Sketcher.Constraint("Tangent", 2, 1, 3, 1))
sketch10.addConstraint(Sketcher.Constraint("Tangent", 3, 2, 4, 1))
sketch10.addConstraint(Sketcher.Constraint("Tangent", 4, 2, 5, 1))
sketch10.addConstraint(Sketcher.Constraint("Tangent", 5, 2, 6, 2))
sketch10.addConstraint(Sketcher.Constraint("Tangent", 6, 1, 7, 2))
sketch10.addConstraint(Sketcher.Constraint("Tangent", 7, 1, 0, 1))
sketch10.addConstraint(Sketcher.Constraint("Vertical", 0))
sketch10.addConstraint(Sketcher.Constraint("Vertical", 4))
sketch10.addConstraint(Sketcher.Constraint("Equal", 3, 5))
sketch10.addConstraint(Sketcher.Constraint("Equal", 2, 6))
sketch10.addConstraint(Sketcher.Constraint("Equal", 1, 7))
sketch10.addConstraint(Sketcher.Constraint("Vertical", 2, 3, 6, 3))
sketch10.addConstraint(Sketcher.Constraint("Vertical", 6, 3, 3, 2))
sketch10.addConstraint(Sketcher.Constraint("Radius", 2, 1.0))
sketch10.addConstraint(Sketcher.Constraint("DistanceY", 0, 1, 0, 2, 2.0))
sketch10.addConstraint(Sketcher.Constraint("Radius", 3, 0.15))
sketch10.addConstraint(Sketcher.Constraint("DistanceY", 1, 3, -1, 1, 8.0))
sketch10.addConstraint(Sketcher.Constraint("DistanceX", 0, 2, -1, 1, 3.0))
sketch10.addConstraint(Sketcher.Constraint("Radius", 1, 0.555))
sketch10.addConstraint(Sketcher.Constraint("DistanceY", 2, 3, -1, 1, 7.6))
pocket8 = body.newObject("PartDesign::Pocket", "Pocket007")
pocket8.Profile = sketch10
pocket8.Length = 8

# Sketch on XY plane
sketch11 = body.newObject("Sketcher::SketchObject", "Sketch010")
sketch11.AttachmentSupport = (doc.getObject("XY_Plane"), [""])
sketch11.MapMode = "FlatFace"
sketch11.AttachmentOffset = App.Placement(App.Vector(0, 0, 12), App.Rotation())
sketch11.addGeometry(Part.LineSegment(App.Vector(-3, -12, 0), App.Vector(-3, -10, 0)), False)
sketch11.addGeometry(Part.ArcOfCircle(Part.Circle(App.Vector(-3.555, -10, 0), App.Vector(0, 0, 1), 0.555), math.radians(-64.010767), math.radians(0)), False)
sketch11.addGeometry(Part.ArcOfCircle(Part.Circle(App.Vector(-3.75, -9.6, 0), App.Vector(0, 0, 1), 1), math.radians(-82.505283), math.radians(-64.010766)), False)
sketch11.addGeometry(Part.ArcOfCircle(Part.Circle(App.Vector(-3.6, -10.740175, 0), App.Vector(0, 0, 1), 0.15), math.radians(97.494717), math.radians(180)), False)
sketch11.addGeometry(Part.LineSegment(App.Vector(-3.75, -10.740175, 0), App.Vector(-3.75, -11.259825, 0)), False)
sketch11.addGeometry(Part.ArcOfCircle(Part.Circle(App.Vector(-3.6, -11.259825, 0), App.Vector(0, 0, 1), 0.15), math.radians(180), math.radians(262.505283)), False)
sketch11.addGeometry(Part.ArcOfCircle(Part.Circle(App.Vector(-3.75, -12.4, 0), App.Vector(0, 0, 1), 1), math.radians(64.010766), math.radians(82.505283)), False)
sketch11.addGeometry(Part.ArcOfCircle(Part.Circle(App.Vector(-3.555, -12, 0), App.Vector(0, 0, 1), 0.555), math.radians(0), math.radians(64.010767)), False)
sketch11.addConstraint(Sketcher.Constraint("Tangent", 0, 2, 1, 2))
sketch11.addConstraint(Sketcher.Constraint("Tangent", 1, 1, 2, 2))
sketch11.addConstraint(Sketcher.Constraint("Tangent", 2, 1, 3, 1))
sketch11.addConstraint(Sketcher.Constraint("Tangent", 3, 2, 4, 1))
sketch11.addConstraint(Sketcher.Constraint("Tangent", 4, 2, 5, 1))
sketch11.addConstraint(Sketcher.Constraint("Tangent", 5, 2, 6, 2))
sketch11.addConstraint(Sketcher.Constraint("Tangent", 6, 1, 7, 2))
sketch11.addConstraint(Sketcher.Constraint("Tangent", 7, 1, 0, 1))
sketch11.addConstraint(Sketcher.Constraint("Vertical", 0))
sketch11.addConstraint(Sketcher.Constraint("Vertical", 4))
sketch11.addConstraint(Sketcher.Constraint("Equal", 3, 5))
sketch11.addConstraint(Sketcher.Constraint("Equal", 2, 6))
sketch11.addConstraint(Sketcher.Constraint("Equal", 1, 7))
sketch11.addConstraint(Sketcher.Constraint("Vertical", 2, 3, 6, 3))
sketch11.addConstraint(Sketcher.Constraint("Vertical", 6, 3, 3, 2))
sketch11.addConstraint(Sketcher.Constraint("Radius", 2, 1.0))
sketch11.addConstraint(Sketcher.Constraint("DistanceY", 0, 1, 0, 2, 2.0))
sketch11.addConstraint(Sketcher.Constraint("Radius", 3, 0.15))
sketch11.addConstraint(Sketcher.Constraint("DistanceY", 1, 3, -1, 1, 10.0))
sketch11.addConstraint(Sketcher.Constraint("DistanceX", 0, 2, -1, 1, 3.0))
sketch11.addConstraint(Sketcher.Constraint("Radius", 1, 0.555))
sketch11.addConstraint(Sketcher.Constraint("DistanceY", 2, 3, -1, 1, 9.6))
pocket9 = body.newObject("PartDesign::Pocket", "Pocket008")
pocket9.Profile = sketch11
pocket9.Length = 8

# Sketch on XY plane
sketch12 = body.newObject("Sketcher::SketchObject", "Sketch011")
sketch12.AttachmentSupport = (doc.getObject("XY_Plane"), [""])
sketch12.MapMode = "FlatFace"
sketch12.AttachmentOffset = App.Placement(App.Vector(0, 0, 12), App.Rotation())
sketch12.addGeometry(Part.LineSegment(App.Vector(-3, -14, 0), App.Vector(-3, -12, 0)), False)
sketch12.addGeometry(Part.ArcOfCircle(Part.Circle(App.Vector(-3.555, -12, 0), App.Vector(0, 0, 1), 0.555), math.radians(-64.010767), math.radians(0)), False)
sketch12.addGeometry(Part.ArcOfCircle(Part.Circle(App.Vector(-3.75, -11.6, 0), App.Vector(0, 0, 1), 1), math.radians(-82.505283), math.radians(-64.010766)), False)
sketch12.addGeometry(Part.ArcOfCircle(Part.Circle(App.Vector(-3.6, -12.740175, 0), App.Vector(0, 0, 1), 0.15), math.radians(97.494717), math.radians(180)), False)
sketch12.addGeometry(Part.LineSegment(App.Vector(-3.75, -12.740175, 0), App.Vector(-3.75, -13.259825, 0)), False)
sketch12.addGeometry(Part.ArcOfCircle(Part.Circle(App.Vector(-3.6, -13.259825, 0), App.Vector(0, 0, 1), 0.15), math.radians(180), math.radians(262.505283)), False)
sketch12.addGeometry(Part.ArcOfCircle(Part.Circle(App.Vector(-3.75, -14.4, 0), App.Vector(0, 0, 1), 1), math.radians(64.010766), math.radians(82.505283)), False)
sketch12.addGeometry(Part.ArcOfCircle(Part.Circle(App.Vector(-3.555, -14, 0), App.Vector(0, 0, 1), 0.555), math.radians(0), math.radians(64.010767)), False)
sketch12.addConstraint(Sketcher.Constraint("Tangent", 0, 2, 1, 2))
sketch12.addConstraint(Sketcher.Constraint("Tangent", 1, 1, 2, 2))
sketch12.addConstraint(Sketcher.Constraint("Tangent", 2, 1, 3, 1))
sketch12.addConstraint(Sketcher.Constraint("Tangent", 3, 2, 4, 1))
sketch12.addConstraint(Sketcher.Constraint("Tangent", 4, 2, 5, 1))
sketch12.addConstraint(Sketcher.Constraint("Tangent", 5, 2, 6, 2))
sketch12.addConstraint(Sketcher.Constraint("Tangent", 6, 1, 7, 2))
sketch12.addConstraint(Sketcher.Constraint("Tangent", 7, 1, 0, 1))
sketch12.addConstraint(Sketcher.Constraint("Vertical", 0))
sketch12.addConstraint(Sketcher.Constraint("Vertical", 4))
sketch12.addConstraint(Sketcher.Constraint("Equal", 3, 5))
sketch12.addConstraint(Sketcher.Constraint("Equal", 2, 6))
sketch12.addConstraint(Sketcher.Constraint("Equal", 1, 7))
sketch12.addConstraint(Sketcher.Constraint("Vertical", 2, 3, 6, 3))
sketch12.addConstraint(Sketcher.Constraint("Vertical", 6, 3, 3, 2))
sketch12.addConstraint(Sketcher.Constraint("Radius", 2, 1.0))
sketch12.addConstraint(Sketcher.Constraint("DistanceY", 0, 1, 0, 2, 2.0))
sketch12.addConstraint(Sketcher.Constraint("Radius", 3, 0.15))
sketch12.addConstraint(Sketcher.Constraint("DistanceY", 1, 3, -1, 1, 12.0))
sketch12.addConstraint(Sketcher.Constraint("DistanceX", 0, 2, -1, 1, 3.0))
sketch12.addConstraint(Sketcher.Constraint("Radius", 1, 0.555))
sketch12.addConstraint(Sketcher.Constraint("DistanceY", 2, 3, -1, 1, 11.6))
pocket10 = body.newObject("PartDesign::Pocket", "Pocket009")
pocket10.Profile = sketch12
pocket10.Length = 8

# Sketch on XY plane
sketch13 = body.newObject("Sketcher::SketchObject", "Sketch012")
sketch13.AttachmentSupport = (doc.getObject("XY_Plane"), [""])
sketch13.MapMode = "FlatFace"
sketch13.AttachmentOffset = App.Placement(App.Vector(0, 0, 12), App.Rotation())
sketch13.addGeometry(Part.LineSegment(App.Vector(-3, -16, 0), App.Vector(-3, -14, 0)), False)
sketch13.addGeometry(Part.ArcOfCircle(Part.Circle(App.Vector(-3.555, -14, 0), App.Vector(0, 0, 1), 0.555), math.radians(-64.010767), math.radians(0)), False)
sketch13.addGeometry(Part.ArcOfCircle(Part.Circle(App.Vector(-3.75, -13.6, 0), App.Vector(0, 0, 1), 1), math.radians(-82.505283), math.radians(-64.010766)), False)
sketch13.addGeometry(Part.ArcOfCircle(Part.Circle(App.Vector(-3.6, -14.740175, 0), App.Vector(0, 0, 1), 0.15), math.radians(97.494717), math.radians(180)), False)
sketch13.addGeometry(Part.LineSegment(App.Vector(-3.75, -14.740175, 0), App.Vector(-3.75, -15.259825, 0)), False)
sketch13.addGeometry(Part.ArcOfCircle(Part.Circle(App.Vector(-3.6, -15.259825, 0), App.Vector(0, 0, 1), 0.15), math.radians(180), math.radians(262.505283)), False)
sketch13.addGeometry(Part.ArcOfCircle(Part.Circle(App.Vector(-3.75, -16.4, 0), App.Vector(0, 0, 1), 1), math.radians(64.010766), math.radians(82.505283)), False)
sketch13.addGeometry(Part.ArcOfCircle(Part.Circle(App.Vector(-3.555, -16, 0), App.Vector(0, 0, 1), 0.555), math.radians(0), math.radians(64.010767)), False)
sketch13.addConstraint(Sketcher.Constraint("Tangent", 0, 2, 1, 2))
sketch13.addConstraint(Sketcher.Constraint("Tangent", 1, 1, 2, 2))
sketch13.addConstraint(Sketcher.Constraint("Tangent", 2, 1, 3, 1))
sketch13.addConstraint(Sketcher.Constraint("Tangent", 3, 2, 4, 1))
sketch13.addConstraint(Sketcher.Constraint("Tangent", 4, 2, 5, 1))
sketch13.addConstraint(Sketcher.Constraint("Tangent", 5, 2, 6, 2))
sketch13.addConstraint(Sketcher.Constraint("Tangent", 6, 1, 7, 2))
sketch13.addConstraint(Sketcher.Constraint("Tangent", 7, 1, 0, 1))
sketch13.addConstraint(Sketcher.Constraint("Vertical", 0))
sketch13.addConstraint(Sketcher.Constraint("Vertical", 4))
sketch13.addConstraint(Sketcher.Constraint("Equal", 3, 5))
sketch13.addConstraint(Sketcher.Constraint("Equal", 2, 6))
sketch13.addConstraint(Sketcher.Constraint("Equal", 1, 7))
sketch13.addConstraint(Sketcher.Constraint("Vertical", 2, 3, 6, 3))
sketch13.addConstraint(Sketcher.Constraint("Vertical", 6, 3, 3, 2))
sketch13.addConstraint(Sketcher.Constraint("Radius", 2, 1.0))
sketch13.addConstraint(Sketcher.Constraint("DistanceY", 0, 1, 0, 2, 2.0))
sketch13.addConstraint(Sketcher.Constraint("Radius", 3, 0.15))
sketch13.addConstraint(Sketcher.Constraint("DistanceY", 1, 3, -1, 1, 14.0))
sketch13.addConstraint(Sketcher.Constraint("DistanceX", 0, 2, -1, 1, 3.0))
sketch13.addConstraint(Sketcher.Constraint("Radius", 1, 0.555))
sketch13.addConstraint(Sketcher.Constraint("DistanceY", 2, 3, -1, 1, 13.6))
pocket11 = body.newObject("PartDesign::Pocket", "Pocket010")
pocket11.Profile = sketch13
pocket11.Length = 8

# Sketch on XZ plane
sketch14 = body.newObject("Sketcher::SketchObject", "Sketch013")
sketch14.AttachmentSupport = (doc.getObject("XZ_Plane"), [""])
sketch14.MapMode = "FlatFace"
sketch14.AttachmentOffset = App.Placement(App.Vector(0, 0, -3), App.Rotation())
add_polygon(sketch14, [(-7.187822, 12), (7.187822, 12), (13.25, 1.5), (-13.25, 1.5)])  # lines 0-3
sketch14.addConstraint(Sketcher.Constraint("Horizontal", 0))
sketch14.addConstraint(Sketcher.Constraint("Horizontal", 2))
sketch14.addConstraint(Sketcher.Constraint("Equal", 1, 3))
sketch14.addConstraint(Sketcher.Constraint("Angle", 1, Q("-60 deg")))
sketch14.addConstraint(Sketcher.Constraint("DistanceX", 2, 2, 2, 1, 26.5))
sketch14.addConstraint(Sketcher.Constraint("DistanceY", -1, 1, 0, 2, 12.0))
sketch14.addConstraint(Sketcher.Constraint("DistanceY", -1, 1, 1, 2, 1.5))
sketch14.addConstraint(Sketcher.Constraint("DistanceX", -1, 1, 1, 2, 13.25))
pocket12 = body.newObject("PartDesign::Pocket", "Pocket011")
pocket12.Profile = sketch14
pocket12.Type = "ThroughAll"
pocket12.Reversed = True

# Sketch on XY plane
sketch15 = body.newObject("Sketcher::SketchObject", "Sketch014")
sketch15.AttachmentSupport = (doc.getObject("XY_Plane"), [""])
sketch15.MapMode = "FlatFace"
sketch15.AttachmentOffset = App.Placement(App.Vector(0, 0, 12), App.Rotation())
sketch15.addGeometry(Part.LineSegment(App.Vector(17.5, 3, 0), App.Vector(7.187822, 3, 0)), False)
sketch15.addGeometry(Part.LineSegment(App.Vector(7.187822, 3, 0), App.Vector(7.187822, -10.13313, 0)), False)
sketch15.addGeometry(Part.ArcOfCircle(Part.Circle(App.Vector(0, 14.853571, 0), App.Vector(0, 0, 1), 26), math.radians(-73.951277), math.radians(-47.69501)), False)
sketch15.addGeometry(Part.LineSegment(App.Vector(17.5, -4.375313, 0), App.Vector(17.5, 3, 0)), False)
sketch15.addConstraint(Sketcher.Constraint("Coincident", 0, 2, 1, 1))
sketch15.addConstraint(Sketcher.Constraint("Coincident", 1, 2, 2, 1))
sketch15.addConstraint(Sketcher.Constraint("Coincident", 2, 2, 3, 1))
sketch15.addConstraint(Sketcher.Constraint("Coincident", 3, 2, 0, 1))
sketch15.addConstraint(Sketcher.Constraint("Horizontal", 0))
sketch15.addConstraint(Sketcher.Constraint("Vertical", 1))
sketch15.addConstraint(Sketcher.Constraint("Vertical", 3))
sketch15.addConstraint(Sketcher.Constraint("PointOnObject", 2, 3, -2))
sketch15.addConstraint(Sketcher.Constraint("Radius", 2, 26.0))
sketch15.addConstraint(Sketcher.Constraint("DistanceY", -1, 1, 0, 2, 3.0))
sketch15.addConstraint(Sketcher.Constraint("DistanceX", -1, 1, 2, 2, 17.5))
sketch15.addConstraint(Sketcher.Constraint("DistanceY", 1, 2, 1, 1, 13.13313))
sketch15.addConstraint(Sketcher.Constraint("DistanceY", 1, 2, 2, 3, 24.986701))
pad3 = body.newObject("PartDesign::Pad", "Pad002")
pad3.Profile = sketch15
pad3.Length = 1
doc.recompute()

mirrored2 = body.newObject("PartDesign::Mirrored", "Mirrored001")
mirrored2.Originals = [pad3]
mirrored2.MirrorPlane = (doc.getObject("YZ_Plane"), [""])
body.Tip = mirrored2

# Sketch on XY plane
sketch16 = body.newObject("Sketcher::SketchObject", "Sketch015")
sketch16.AttachmentSupport = (doc.getObject("XY_Plane"), [""])
sketch16.MapMode = "FlatFace"
sketch16.addGeometry(Part.LineSegment(App.Vector(-17.5, -4.375313, 0), App.Vector(-17.5, -3, 0)), False)
sketch16.addGeometry(Part.ArcOfCircle(Part.Circle(App.Vector(0, 14.853571, 0), App.Vector(0, 0, 1), 25), math.radians(-134.427004), math.radians(-45.572996)), False)
sketch16.addGeometry(Part.LineSegment(App.Vector(17.5, -3, 0), App.Vector(17.5, -4.375313, 0)), False)
sketch16.addGeometry(Part.ArcOfCircle(Part.Circle(App.Vector(0, 14.853571, 0), App.Vector(0, 0, 1), 26), math.radians(-132.30499), math.radians(-47.69501)), False)
sketch16.addConstraint(Sketcher.Constraint("Coincident", 0, 2, 1, 1))
sketch16.addConstraint(Sketcher.Constraint("Coincident", 1, 2, 2, 1))
sketch16.addConstraint(Sketcher.Constraint("Coincident", 2, 2, 3, 2))
sketch16.addConstraint(Sketcher.Constraint("Coincident", 3, 1, 0, 1))
sketch16.addConstraint(Sketcher.Constraint("Vertical", 0))
sketch16.addConstraint(Sketcher.Constraint("Vertical", 2))
sketch16.addConstraint(Sketcher.Constraint("Coincident", 3, 3, 1, 3))
sketch16.addConstraint(Sketcher.Constraint("Symmetric", 0, 2, 1, 2, -2))
sketch16.addConstraint(Sketcher.Constraint("Radius", 1, 25.0))
sketch16.addConstraint(Sketcher.Constraint("Radius", 3, 26.0))
sketch16.addConstraint(Sketcher.Constraint("DistanceY", 0, 2, -1, 1, 3.0))
sketch16.addConstraint(Sketcher.Constraint("DistanceX", 0, 2, 1, 2, 35.0))
pad4 = body.newObject("PartDesign::Pad", "Pad003")
pad4.Profile = sketch16
pad4.Length = 1

doc.recompute()
